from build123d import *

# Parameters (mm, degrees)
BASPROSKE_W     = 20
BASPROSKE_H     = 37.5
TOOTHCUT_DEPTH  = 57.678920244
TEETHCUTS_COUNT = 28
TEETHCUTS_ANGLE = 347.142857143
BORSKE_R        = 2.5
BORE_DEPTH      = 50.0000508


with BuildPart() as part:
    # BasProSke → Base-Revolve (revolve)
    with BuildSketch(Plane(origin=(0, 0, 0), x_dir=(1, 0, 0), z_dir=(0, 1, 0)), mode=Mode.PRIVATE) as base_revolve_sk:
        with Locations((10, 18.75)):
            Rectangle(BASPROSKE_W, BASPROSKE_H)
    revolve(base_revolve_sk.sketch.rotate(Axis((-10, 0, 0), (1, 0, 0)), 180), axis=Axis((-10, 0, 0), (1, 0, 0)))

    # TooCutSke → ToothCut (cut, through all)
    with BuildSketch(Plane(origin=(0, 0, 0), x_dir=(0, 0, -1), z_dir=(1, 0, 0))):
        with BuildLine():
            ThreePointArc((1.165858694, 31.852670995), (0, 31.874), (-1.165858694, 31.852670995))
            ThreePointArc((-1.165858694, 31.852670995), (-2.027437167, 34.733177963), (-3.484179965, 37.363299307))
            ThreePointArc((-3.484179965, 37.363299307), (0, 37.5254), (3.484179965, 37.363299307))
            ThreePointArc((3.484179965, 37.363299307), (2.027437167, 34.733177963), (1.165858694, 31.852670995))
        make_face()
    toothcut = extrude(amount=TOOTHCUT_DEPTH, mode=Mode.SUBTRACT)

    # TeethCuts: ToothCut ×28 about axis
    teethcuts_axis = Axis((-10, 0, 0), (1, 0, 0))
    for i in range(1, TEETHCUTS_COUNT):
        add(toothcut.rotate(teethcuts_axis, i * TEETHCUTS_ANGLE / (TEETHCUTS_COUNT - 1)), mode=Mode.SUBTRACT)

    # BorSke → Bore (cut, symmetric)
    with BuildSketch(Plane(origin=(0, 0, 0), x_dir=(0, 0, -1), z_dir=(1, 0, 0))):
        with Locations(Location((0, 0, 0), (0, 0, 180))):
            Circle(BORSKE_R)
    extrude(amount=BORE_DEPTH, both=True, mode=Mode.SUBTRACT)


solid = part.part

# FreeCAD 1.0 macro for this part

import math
import FreeCAD as App
import Part
import Sketcher


def add_polygon(sketch, points):
    """Adds a closed chain of lines whose ends are joined by coincident constraints."""
    first, n = sketch.GeometryCount, len(points)
    for a, b in zip(points, points[1:] + points[:1]):
        sketch.addGeometry(Part.LineSegment(App.Vector(*a, 0), App.Vector(*b, 0)), False)
    for i in range(n):
        sketch.addConstraint(Sketcher.Constraint("Coincident", first + i, 2, first + (i + 1) % n, 1))

doc = App.newDocument("Part")
body = doc.addObject("PartDesign::Body", "Body")

sketch1 = body.newObject("Sketcher::SketchObject", "Sketch")
sketch1.AttachmentSupport = (doc.getObject("XZ_Plane"), [""])
sketch1.MapMode = "FlatFace"
add_polygon(sketch1, [(0, -38), (0, 0), (20, 0), (20, -38)])
sketch1.addConstraint(Sketcher.Constraint("Vertical", 0))
sketch1.addConstraint(Sketcher.Constraint("Horizontal", 1))
sketch1.addConstraint(Sketcher.Constraint("Vertical", 2))
sketch1.addConstraint(Sketcher.Constraint("Horizontal", 3))
sketch1.addConstraint(Sketcher.Constraint("Coincident", 0, 2, -1, 1))
sketch1.addConstraint(Sketcher.Constraint("DistanceX", 1, 1, 1, 2, 20.0))
sketch1.addConstraint(Sketcher.Constraint("DistanceY", 0, 1, 0, 2, 37.5))
revolution = body.newObject("PartDesign::Revolution", "Revolution")
revolution.Profile = sketch1
revolution.ReferenceAxis = (sketch1, ["H_Axis"])
revolution.Angle = 360

sketch2 = body.newObject("Sketcher::SketchObject", "Sketch001")
sketch2.AttachmentSupport = (doc.getObject("YZ_Plane"), [""])
sketch2.MapMode = "FlatFace"
sketch2.addGeometry(Part.ArcOfCircle(Part.Circle(App.Vector(0, 0, 0), App.Vector(0, 0, 1), 31.9), math.radians(-2.1), math.radians(2.1)), False)
sketch2.addGeometry(Part.ArcOfCircle(Part.Circle(App.Vector(29.3, -14.9, 0), App.Vector(0, 0, 1), 14), math.radians(55), math.radians(80)), False)
sketch2.addGeometry(Part.ArcOfCircle(Part.Circle(App.Vector(0, 0, 0), App.Vector(0, 0, 1), 37.5), math.radians(-5.33), math.radians(5.33)), False)
sketch2.addGeometry(Part.ArcOfCircle(Part.Circle(App.Vector(29.3, 14.9, 0), App.Vector(0, 0, 1), 14), math.radians(-80), math.radians(-55)), False)
sketch2.addConstraint(Sketcher.Constraint("Coincident", 0, 1, 1, 2))
sketch2.addConstraint(Sketcher.Constraint("Coincident", 1, 1, 2, 1))
sketch2.addConstraint(Sketcher.Constraint("Coincident", 2, 2, 3, 2))
sketch2.addConstraint(Sketcher.Constraint("Coincident", 3, 1, 0, 2))
sketch2.addConstraint(Sketcher.Constraint("Coincident", 0, 3, -1, 1))
sketch2.addConstraint(Sketcher.Constraint("Coincident", 2, 3, -1, 1))
sketch2.addConstraint(Sketcher.Constraint("Equal", 1, 3))
sketch2.addConstraint(Sketcher.Constraint("Symmetric", 1, 3, 3, 3, -1))
sketch2.addConstraint(Sketcher.Constraint("Radius", 1, 14.0))
sketch2.addConstraint(Sketcher.Constraint("Radius", 0, 31.874))
sketch2.addConstraint(Sketcher.Constraint("Radius", 2, 37.5254))
sketch2.addConstraint(Sketcher.Constraint("DistanceX", -1, 1, 1, 1, 37.363299))
sketch2.addConstraint(Sketcher.Constraint("DistanceY", 1, 3, 0, 1, 13.766101))
pocket1 = body.newObject("PartDesign::Pocket", "Pocket")
pocket1.Profile = sketch2
pocket1.Type = "ThroughAll"
pocket1.Reversed = True
doc.recompute()

polarpattern = body.newObject("PartDesign::PolarPattern", "PolarPattern")
polarpattern.Originals = [pocket1]
polarpattern.Axis = (doc.getObject("X_Axis"), [""])
polarpattern.Angle = 360
polarpattern.Occurrences = 28
body.Tip = polarpattern

sketch3 = body.newObject("Sketcher::SketchObject", "Sketch002")
sketch3.AttachmentSupport = (doc.getObject("YZ_Plane"), [""])
sketch3.MapMode = "FlatFace"
sketch3.addGeometry(Part.Circle(App.Vector(0, 0, 0), App.Vector(0, 0, 1), 2.5), False)
sketch3.addConstraint(Sketcher.Constraint("Coincident", 0, 3, -1, 1))
sketch3.addConstraint(Sketcher.Constraint("Diameter", 0, 5.0))
pocket2 = body.newObject("PartDesign::Pocket", "Pocket001")
pocket2.Profile = sketch3
pocket2.Length = 100.000102
pocket2.Midplane = True

doc.recompute()
